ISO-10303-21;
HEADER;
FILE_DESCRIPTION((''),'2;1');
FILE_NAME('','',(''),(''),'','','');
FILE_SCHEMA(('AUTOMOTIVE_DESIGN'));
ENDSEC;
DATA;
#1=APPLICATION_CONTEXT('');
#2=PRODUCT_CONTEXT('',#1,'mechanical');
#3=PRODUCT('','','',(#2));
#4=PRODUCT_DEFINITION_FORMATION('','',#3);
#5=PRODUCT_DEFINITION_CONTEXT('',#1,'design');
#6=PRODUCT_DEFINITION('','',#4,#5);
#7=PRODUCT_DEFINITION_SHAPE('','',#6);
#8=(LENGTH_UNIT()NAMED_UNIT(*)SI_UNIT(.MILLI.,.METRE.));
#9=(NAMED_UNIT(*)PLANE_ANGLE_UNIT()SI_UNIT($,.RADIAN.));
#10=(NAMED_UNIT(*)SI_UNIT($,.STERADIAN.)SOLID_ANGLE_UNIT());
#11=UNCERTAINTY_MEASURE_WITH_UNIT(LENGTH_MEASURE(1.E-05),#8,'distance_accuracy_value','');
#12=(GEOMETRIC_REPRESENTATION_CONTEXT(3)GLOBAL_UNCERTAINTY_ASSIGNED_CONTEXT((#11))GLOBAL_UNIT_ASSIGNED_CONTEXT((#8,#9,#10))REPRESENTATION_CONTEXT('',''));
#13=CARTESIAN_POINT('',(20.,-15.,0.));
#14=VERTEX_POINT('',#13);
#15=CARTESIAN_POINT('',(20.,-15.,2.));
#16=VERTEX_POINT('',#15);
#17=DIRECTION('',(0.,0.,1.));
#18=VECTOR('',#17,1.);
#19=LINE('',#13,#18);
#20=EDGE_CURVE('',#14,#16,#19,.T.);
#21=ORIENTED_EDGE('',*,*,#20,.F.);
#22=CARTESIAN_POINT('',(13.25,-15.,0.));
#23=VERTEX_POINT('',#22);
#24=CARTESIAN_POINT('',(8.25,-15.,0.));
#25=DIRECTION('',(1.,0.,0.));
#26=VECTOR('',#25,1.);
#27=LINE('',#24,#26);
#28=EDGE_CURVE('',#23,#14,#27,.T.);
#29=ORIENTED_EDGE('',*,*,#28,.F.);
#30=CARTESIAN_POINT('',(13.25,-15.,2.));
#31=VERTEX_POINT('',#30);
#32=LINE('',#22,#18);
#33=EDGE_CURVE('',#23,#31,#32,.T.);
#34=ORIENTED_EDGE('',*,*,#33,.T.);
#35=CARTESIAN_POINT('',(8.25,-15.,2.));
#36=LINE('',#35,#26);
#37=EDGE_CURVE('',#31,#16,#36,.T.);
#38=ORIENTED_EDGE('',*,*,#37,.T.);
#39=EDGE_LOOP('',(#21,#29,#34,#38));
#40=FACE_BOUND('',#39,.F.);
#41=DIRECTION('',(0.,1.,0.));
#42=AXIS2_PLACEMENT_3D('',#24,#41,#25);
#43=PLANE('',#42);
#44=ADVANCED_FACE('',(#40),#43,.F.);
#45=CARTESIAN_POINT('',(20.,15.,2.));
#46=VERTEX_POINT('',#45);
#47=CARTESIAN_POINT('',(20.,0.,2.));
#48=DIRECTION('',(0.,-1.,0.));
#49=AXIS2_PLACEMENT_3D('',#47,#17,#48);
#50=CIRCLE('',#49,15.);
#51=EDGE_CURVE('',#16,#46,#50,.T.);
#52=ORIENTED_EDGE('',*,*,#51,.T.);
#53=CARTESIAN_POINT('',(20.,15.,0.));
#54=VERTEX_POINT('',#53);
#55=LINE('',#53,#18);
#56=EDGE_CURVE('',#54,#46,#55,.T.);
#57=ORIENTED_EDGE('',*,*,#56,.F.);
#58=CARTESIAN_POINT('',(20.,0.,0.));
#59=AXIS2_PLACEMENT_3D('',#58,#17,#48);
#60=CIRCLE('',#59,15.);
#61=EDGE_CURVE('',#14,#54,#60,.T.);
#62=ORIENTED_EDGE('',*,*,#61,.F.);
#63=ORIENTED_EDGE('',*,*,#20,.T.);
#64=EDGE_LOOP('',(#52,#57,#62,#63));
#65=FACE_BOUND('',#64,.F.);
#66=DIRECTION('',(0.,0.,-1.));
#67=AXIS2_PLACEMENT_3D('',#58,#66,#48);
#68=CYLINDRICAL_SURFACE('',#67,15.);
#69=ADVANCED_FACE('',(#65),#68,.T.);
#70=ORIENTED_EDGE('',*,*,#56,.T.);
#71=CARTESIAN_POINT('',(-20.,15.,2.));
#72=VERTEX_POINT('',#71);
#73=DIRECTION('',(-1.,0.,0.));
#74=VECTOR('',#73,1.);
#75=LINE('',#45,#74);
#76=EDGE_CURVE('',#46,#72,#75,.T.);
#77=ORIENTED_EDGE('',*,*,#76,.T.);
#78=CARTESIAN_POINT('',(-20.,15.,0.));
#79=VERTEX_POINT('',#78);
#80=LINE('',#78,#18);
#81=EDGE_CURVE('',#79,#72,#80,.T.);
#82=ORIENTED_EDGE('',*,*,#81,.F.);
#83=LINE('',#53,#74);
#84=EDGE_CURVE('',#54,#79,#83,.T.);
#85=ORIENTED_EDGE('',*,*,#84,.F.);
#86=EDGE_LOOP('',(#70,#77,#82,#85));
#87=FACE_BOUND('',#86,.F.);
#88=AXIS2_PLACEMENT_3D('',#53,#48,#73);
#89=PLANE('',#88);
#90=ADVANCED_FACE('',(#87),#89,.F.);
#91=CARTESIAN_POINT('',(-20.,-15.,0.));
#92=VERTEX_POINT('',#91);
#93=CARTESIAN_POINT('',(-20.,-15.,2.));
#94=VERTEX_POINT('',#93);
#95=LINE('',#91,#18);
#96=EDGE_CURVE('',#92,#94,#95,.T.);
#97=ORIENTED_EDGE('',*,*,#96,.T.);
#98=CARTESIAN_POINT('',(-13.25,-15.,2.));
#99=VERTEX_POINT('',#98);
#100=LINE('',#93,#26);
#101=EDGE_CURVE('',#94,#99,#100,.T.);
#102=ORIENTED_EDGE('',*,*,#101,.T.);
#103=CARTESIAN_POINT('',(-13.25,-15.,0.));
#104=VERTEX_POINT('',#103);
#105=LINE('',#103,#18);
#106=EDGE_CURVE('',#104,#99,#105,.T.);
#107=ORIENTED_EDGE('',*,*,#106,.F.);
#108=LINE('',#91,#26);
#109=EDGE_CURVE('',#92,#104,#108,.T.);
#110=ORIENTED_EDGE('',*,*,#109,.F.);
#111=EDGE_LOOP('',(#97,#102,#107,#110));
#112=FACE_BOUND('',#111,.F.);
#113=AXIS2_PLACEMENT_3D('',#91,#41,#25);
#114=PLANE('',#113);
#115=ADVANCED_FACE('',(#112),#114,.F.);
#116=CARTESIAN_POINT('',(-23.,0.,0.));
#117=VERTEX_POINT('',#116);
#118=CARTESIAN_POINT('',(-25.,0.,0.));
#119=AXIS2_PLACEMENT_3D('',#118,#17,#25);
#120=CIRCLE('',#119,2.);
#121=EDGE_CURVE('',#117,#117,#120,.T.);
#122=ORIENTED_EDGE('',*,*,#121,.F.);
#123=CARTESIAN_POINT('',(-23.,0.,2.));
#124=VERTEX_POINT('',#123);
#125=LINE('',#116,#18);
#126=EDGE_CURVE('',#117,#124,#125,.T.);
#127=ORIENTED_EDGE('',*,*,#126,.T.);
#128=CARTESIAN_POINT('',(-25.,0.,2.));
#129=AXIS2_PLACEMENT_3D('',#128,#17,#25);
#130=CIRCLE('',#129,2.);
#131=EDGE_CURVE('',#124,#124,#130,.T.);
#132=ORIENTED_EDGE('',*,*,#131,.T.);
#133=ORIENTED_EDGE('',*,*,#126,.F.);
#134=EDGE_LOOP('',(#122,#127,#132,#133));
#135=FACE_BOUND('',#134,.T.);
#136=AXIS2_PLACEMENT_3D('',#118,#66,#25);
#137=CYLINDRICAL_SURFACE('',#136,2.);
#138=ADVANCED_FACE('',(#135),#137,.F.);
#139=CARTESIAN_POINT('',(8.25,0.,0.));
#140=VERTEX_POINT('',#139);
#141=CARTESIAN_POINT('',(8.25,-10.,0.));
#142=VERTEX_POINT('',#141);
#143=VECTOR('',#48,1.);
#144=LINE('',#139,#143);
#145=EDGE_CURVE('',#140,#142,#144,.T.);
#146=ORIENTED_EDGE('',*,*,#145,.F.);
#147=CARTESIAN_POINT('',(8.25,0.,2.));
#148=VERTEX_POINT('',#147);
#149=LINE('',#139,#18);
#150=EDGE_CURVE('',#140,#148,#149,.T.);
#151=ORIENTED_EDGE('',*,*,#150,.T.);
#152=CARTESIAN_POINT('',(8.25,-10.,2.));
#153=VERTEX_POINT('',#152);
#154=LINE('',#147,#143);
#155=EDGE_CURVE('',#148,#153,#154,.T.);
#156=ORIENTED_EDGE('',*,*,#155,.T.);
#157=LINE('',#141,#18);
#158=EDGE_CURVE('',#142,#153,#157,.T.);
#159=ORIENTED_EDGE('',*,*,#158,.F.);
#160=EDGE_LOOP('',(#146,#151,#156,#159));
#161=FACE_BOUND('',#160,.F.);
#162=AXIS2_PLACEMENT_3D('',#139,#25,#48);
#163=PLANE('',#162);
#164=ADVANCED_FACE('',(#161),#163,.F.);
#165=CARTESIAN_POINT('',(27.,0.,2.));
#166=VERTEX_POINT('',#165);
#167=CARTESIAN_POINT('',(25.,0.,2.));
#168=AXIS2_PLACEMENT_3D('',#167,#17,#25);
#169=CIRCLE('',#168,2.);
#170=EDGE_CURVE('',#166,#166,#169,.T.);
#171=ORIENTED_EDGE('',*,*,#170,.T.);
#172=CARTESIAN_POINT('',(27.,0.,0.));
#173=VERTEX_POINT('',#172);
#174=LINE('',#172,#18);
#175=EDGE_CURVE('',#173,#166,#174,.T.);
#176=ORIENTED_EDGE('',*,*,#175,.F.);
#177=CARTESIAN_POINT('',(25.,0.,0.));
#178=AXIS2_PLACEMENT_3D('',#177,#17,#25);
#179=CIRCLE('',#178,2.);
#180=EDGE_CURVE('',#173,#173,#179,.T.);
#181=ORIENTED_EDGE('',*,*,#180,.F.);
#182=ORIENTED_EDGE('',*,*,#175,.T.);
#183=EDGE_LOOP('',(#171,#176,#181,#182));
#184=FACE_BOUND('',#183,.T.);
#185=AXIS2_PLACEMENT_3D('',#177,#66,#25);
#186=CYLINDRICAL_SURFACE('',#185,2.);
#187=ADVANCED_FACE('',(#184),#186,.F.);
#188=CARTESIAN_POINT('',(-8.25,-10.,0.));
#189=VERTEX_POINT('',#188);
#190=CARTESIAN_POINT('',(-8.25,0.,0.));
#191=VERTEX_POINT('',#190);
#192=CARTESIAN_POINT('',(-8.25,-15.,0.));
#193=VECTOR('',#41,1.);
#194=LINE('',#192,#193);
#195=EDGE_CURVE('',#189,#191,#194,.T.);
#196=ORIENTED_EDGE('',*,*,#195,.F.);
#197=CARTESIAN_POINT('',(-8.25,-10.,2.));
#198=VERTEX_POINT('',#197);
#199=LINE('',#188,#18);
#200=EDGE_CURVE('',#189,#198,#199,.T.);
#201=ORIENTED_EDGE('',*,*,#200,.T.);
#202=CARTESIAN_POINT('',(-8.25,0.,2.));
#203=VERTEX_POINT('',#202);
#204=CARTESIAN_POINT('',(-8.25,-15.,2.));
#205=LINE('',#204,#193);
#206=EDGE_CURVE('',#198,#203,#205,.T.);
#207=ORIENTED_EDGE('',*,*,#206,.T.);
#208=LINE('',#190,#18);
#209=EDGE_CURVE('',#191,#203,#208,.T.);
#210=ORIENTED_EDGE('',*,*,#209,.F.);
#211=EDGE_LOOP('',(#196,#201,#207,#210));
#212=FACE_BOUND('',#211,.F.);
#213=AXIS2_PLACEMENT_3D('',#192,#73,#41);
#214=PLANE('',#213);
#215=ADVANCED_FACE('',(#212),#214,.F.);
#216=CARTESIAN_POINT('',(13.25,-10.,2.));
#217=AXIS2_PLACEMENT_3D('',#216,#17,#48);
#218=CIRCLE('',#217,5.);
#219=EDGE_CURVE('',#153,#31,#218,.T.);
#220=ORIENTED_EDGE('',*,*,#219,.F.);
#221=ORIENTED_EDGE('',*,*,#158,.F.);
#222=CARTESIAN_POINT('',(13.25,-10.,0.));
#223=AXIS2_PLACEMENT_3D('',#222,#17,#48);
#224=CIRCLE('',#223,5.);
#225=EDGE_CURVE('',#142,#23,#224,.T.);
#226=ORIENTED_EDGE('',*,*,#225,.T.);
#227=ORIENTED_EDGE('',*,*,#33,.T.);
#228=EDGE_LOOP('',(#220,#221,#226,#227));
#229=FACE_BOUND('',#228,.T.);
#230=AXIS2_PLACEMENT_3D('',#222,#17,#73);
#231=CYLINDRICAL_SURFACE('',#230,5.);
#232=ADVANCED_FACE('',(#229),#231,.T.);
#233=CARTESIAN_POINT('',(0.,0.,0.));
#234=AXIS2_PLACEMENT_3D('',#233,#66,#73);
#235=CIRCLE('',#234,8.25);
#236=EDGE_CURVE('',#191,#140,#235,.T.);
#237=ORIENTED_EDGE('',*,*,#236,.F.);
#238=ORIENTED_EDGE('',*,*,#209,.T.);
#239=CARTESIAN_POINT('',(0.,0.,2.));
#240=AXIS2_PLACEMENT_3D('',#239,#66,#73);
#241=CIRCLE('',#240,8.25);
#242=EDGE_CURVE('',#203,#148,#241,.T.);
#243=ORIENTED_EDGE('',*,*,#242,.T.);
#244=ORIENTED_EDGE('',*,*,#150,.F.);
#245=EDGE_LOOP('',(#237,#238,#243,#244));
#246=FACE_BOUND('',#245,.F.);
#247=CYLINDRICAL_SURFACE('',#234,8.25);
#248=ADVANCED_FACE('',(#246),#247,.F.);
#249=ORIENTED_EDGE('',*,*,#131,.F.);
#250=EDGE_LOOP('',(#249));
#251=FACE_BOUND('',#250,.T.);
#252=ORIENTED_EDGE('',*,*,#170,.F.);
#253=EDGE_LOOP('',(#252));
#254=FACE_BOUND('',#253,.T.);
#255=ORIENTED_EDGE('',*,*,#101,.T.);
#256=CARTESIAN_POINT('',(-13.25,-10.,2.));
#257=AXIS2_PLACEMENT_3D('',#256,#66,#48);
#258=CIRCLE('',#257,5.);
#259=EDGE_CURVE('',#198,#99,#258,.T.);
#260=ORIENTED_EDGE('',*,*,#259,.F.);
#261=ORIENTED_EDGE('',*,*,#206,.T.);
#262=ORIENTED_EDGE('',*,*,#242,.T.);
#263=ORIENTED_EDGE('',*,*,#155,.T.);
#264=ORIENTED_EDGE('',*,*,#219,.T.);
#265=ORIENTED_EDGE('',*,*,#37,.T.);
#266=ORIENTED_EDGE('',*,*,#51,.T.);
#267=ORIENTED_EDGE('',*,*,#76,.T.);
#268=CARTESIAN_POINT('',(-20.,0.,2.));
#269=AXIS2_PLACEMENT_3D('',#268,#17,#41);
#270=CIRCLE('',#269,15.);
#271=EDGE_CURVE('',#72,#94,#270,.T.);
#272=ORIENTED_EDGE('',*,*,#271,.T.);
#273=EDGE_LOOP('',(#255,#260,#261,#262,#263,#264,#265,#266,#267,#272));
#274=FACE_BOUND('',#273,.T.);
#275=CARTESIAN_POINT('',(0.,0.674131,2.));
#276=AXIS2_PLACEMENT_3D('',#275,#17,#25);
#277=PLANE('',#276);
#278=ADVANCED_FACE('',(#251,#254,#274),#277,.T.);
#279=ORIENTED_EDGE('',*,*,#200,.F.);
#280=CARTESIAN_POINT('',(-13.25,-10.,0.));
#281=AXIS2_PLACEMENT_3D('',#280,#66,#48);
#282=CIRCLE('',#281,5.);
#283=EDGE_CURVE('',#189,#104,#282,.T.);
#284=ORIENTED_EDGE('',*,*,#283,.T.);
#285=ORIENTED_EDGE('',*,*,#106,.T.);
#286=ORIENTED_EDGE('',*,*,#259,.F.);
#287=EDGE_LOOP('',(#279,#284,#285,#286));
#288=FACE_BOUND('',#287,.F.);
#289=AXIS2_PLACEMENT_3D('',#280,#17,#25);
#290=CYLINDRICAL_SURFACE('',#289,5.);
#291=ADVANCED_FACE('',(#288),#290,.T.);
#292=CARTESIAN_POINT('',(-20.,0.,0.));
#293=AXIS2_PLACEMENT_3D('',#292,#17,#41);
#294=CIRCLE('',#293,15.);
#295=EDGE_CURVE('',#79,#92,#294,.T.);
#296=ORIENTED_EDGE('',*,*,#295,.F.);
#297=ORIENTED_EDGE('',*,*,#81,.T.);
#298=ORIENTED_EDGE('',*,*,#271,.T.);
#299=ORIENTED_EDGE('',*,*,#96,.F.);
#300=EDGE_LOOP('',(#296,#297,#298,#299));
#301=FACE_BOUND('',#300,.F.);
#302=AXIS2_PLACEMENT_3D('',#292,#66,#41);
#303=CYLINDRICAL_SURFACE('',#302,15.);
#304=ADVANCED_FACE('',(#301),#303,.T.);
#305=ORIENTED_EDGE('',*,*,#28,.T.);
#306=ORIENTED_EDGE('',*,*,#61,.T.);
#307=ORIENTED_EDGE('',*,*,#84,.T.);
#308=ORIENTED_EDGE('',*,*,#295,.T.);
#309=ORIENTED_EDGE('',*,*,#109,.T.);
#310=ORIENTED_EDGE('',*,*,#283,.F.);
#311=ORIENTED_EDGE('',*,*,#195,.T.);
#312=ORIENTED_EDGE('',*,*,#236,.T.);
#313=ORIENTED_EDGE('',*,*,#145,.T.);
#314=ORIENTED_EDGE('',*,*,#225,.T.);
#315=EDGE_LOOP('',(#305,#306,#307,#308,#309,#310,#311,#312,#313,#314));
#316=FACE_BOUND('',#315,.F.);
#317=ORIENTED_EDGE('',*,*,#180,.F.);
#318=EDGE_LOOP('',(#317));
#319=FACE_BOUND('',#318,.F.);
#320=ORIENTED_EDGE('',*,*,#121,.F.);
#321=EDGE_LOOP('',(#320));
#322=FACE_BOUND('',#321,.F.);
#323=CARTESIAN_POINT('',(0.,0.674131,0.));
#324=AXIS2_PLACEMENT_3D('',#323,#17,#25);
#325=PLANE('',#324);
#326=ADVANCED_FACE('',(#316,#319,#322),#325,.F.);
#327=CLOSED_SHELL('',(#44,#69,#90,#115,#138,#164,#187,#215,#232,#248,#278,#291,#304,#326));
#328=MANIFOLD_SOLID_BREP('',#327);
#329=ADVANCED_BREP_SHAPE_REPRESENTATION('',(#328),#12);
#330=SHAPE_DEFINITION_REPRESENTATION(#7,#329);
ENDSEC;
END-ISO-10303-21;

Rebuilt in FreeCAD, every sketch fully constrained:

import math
import FreeCAD as App
import Part
import Sketcher

V = App.Vector


def edges_at(feature, points):
    """Names of the edges that pass closest to the given points."""
    edges = feature.Shape.Edges
    near = lambda p: min(range(len(edges)), key=lambda i: edges[i].distToShape(Part.Vertex(*p))[0])
    return sorted({f"Edge{near(p) + 1}" for p in points})

doc = App.newDocument("Part")
body = doc.addObject("PartDesign::Body", "Body")

# Sketch on XY plane
sketch1 = body.newObject("Sketcher::SketchObject", "Sketch")
sketch1.AttachmentSupport = (doc.getObject("XY_Plane"), [""])
sketch1.MapMode = "FlatFace"
sketch1.addGeometry([
    Part.ArcOfCircle(Part.Circle(V(0, 0, 0), V(0, 0, 1), 8.2), math.radians(0), math.radians(180)),  # 0
    Part.LineSegment(V(8.2, 0, 0), V(8.2, -15, 0)),  # 1
    Part.LineSegment(V(8.2, -15, 0), V(20, -15, 0)),  # 2
    Part.ArcOfCircle(Part.Circle(V(20, 0, 0), V(0, 0, 1), 15), math.radians(-90), math.radians(90)),  # 3
    Part.LineSegment(V(20, 15, 0), V(-20, 15, 0)),  # 4
    Part.ArcOfCircle(Part.Circle(V(-20, 0, 0), V(0, 0, 1), 15), math.radians(90), math.radians(270)),  # 5
    Part.LineSegment(V(-20, -15, 0), V(-8.2, -15, 0)),  # 6
    Part.LineSegment(V(-8.2, -15, 0), V(-8.2, 0, 0)),  # 7
    Part.Circle(V(-25, 0, 0), V(0, 0, 1), 2),  # 8
    Part.Circle(V(25, 0, 0), V(0, 0, 1), 2),  # 9
], False)
sketch1.addConstraint([
    Sketcher.Constraint("Tangent", 0, 1, 1, 1),
    Sketcher.Constraint("Coincident", 1, 2, 2, 1),
    Sketcher.Constraint("Tangent", 2, 2, 3, 1),
    Sketcher.Constraint("Tangent", 3, 2, 4, 1),
    Sketcher.Constraint("Tangent", 4, 2, 5, 1),
    Sketcher.Constraint("Tangent", 5, 2, 6, 1),
    Sketcher.Constraint("Coincident", 6, 2, 7, 1),
    Sketcher.Constraint("Tangent", 7, 2, 0, 2),
    Sketcher.Constraint("Vertical", 1),
    Sketcher.Constraint("Horizontal", 2),
    Sketcher.Constraint("Horizontal", 4),
    Sketcher.Constraint("Horizontal", 6),
    Sketcher.Constraint("Vertical", 7),
    Sketcher.Constraint("Coincident", 0, 3, -1, 1),
    Sketcher.Constraint("Equal", 3, 5),
    Sketcher.Constraint("Equal", 8, 9),
    Sketcher.Constraint("Symmetric", 3, 3, 5, 3, -1, 1),
    Sketcher.Constraint("Symmetric", 8, 3, 9, 3, -1, 1),
    Sketcher.Constraint("PointOnObject", 8, 3, -1),
    Sketcher.Constraint("Diameter", 8, 4.0),
    Sketcher.Constraint("Radius", 3, 15.0),
    Sketcher.Constraint("DistanceX", 4, 2, 4, 1, 40.0),
    Sketcher.Constraint("Radius", 0, 8.25),
    Sketcher.Constraint("DistanceX", 8, 3, -1, 1, 25.0),
])
pad1 = body.newObject("PartDesign::Pad", "Pad")
pad1.Profile = sketch1
pad1.Length = 2
doc.recompute()

fillet = body.newObject("PartDesign::Fillet", "Fillet")
fillet.Base = (pad1, edges_at(pad1, [(-8.25, -15, 1), (8.25, -15, 1)]))
fillet.Radius = 5

doc.recompute()
